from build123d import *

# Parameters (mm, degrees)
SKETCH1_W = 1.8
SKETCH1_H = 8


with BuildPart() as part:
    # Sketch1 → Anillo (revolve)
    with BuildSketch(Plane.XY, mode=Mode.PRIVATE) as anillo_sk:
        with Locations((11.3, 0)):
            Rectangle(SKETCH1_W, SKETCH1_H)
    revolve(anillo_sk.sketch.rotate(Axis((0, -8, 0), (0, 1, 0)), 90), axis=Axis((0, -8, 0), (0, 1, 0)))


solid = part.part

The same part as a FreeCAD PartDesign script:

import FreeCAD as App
import Part
import Sketcher
Q = App.Units.Quantity


def add_polygon(sketch, points):
    """Adds a closed chain of lines whose ends are joined by coincident constraints."""
    first, n = sketch.GeometryCount, len(points)
    for a, b in zip(points, points[1:] + points[:1]):
        sketch.addGeometry(Part.LineSegment(App.Vector(*a, 0), App.Vector(*b, 0)), False)
    for i in range(n):
        sketch.addConstraint(Sketcher.Constraint("Coincident", first + i, 2, first + (i + 1) % n, 1))

doc = App.newDocument("Part")
params = doc.addObject("Spreadsheet::Sheet", "Params")
for row, (alias, value) in enumerate([
    ("sketch1_height", "8 mm"),
    ("sketch1_width", "1.8 mm"),
    ("revolution_angle", "360 deg"),
], start=1):
    params.set(f"A{row}", alias)
    params.set(f"B{row}", "=" + value)
    params.setAlias(f"B{row}", alias)

body = doc.addObject("PartDesign::Body", "Body")

# Sketch on XY plane
sketch1 = body.newObject("Sketcher::SketchObject", "Sketch")
sketch1.AttachmentSupport = (doc.getObject("XY_Plane"), [""])
sketch1.MapMode = "FlatFace"
add_polygon(sketch1, [(10.4, 4), (10.4, -4), (12.2, -4), (12.2, 4)])  # lines 0-3
sketch1.addConstraint(Sketcher.Constraint("Vertical", 0))
sketch1.addConstraint(Sketcher.Constraint("Horizontal", 1))
sketch1.addConstraint(Sketcher.Constraint("Vertical", 2))
sketch1.addConstraint(Sketcher.Constraint("Horizontal", 3))
sketch1.addConstraint(Sketcher.Constraint("DistanceY", 0, 2, 0, 1, Q("8 mm")))
sketch1.addConstraint(Sketcher.Constraint("DistanceX", 1, 1, 1, 2, Q("1.8 mm")))
sketch1.addConstraint(Sketcher.Constraint("DistanceY", 0, 2, -1, 1, Q("4 mm")))
sketch1.addConstraint(Sketcher.Constraint("DistanceX", -1, 1, 0, 2, Q("10.4 mm")))
sketch1.setExpression("Constraints[8]", "Params.sketch1_height")
sketch1.setExpression("Constraints[9]", "Params.sketch1_width")
revolution = body.newObject("PartDesign::Revolution", "Revolution")
revolution.Profile = sketch1
revolution.ReferenceAxis = (sketch1, ["V_Axis"])
revolution.setExpression("Angle", "Params.revolution_angle")

doc.recompute()
